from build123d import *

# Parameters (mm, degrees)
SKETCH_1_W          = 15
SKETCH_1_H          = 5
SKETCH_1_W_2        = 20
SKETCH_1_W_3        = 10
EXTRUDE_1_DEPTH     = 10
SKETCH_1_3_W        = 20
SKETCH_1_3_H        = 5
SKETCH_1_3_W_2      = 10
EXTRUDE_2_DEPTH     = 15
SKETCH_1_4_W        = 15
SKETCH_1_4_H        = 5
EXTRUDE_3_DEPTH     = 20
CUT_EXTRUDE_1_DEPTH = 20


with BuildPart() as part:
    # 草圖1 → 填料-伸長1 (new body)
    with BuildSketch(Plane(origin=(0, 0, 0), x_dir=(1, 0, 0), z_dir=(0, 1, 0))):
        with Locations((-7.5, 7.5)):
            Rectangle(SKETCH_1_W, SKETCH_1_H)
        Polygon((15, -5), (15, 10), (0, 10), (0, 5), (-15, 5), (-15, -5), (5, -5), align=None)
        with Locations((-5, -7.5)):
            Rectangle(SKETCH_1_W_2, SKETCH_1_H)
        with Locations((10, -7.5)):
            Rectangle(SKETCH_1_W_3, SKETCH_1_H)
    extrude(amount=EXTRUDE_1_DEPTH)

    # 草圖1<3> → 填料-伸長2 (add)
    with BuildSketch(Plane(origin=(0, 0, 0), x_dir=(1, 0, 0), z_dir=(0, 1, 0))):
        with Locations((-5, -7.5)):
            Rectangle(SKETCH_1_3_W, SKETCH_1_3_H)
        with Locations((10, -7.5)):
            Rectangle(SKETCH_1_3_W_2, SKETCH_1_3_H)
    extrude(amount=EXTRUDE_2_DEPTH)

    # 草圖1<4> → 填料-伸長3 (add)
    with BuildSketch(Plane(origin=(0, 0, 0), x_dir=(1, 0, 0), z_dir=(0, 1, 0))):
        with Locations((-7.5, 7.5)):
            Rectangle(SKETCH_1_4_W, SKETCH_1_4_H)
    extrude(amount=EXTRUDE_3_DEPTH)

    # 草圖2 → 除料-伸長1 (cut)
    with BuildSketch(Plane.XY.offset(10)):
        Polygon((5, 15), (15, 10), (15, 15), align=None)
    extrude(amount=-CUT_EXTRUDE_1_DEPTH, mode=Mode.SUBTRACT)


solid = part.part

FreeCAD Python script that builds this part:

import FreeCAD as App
import Part
import Sketcher

V = App.Vector

doc = App.newDocument("Part")
body = doc.addObject("PartDesign::Body", "Body")

sketch1 = body.newObject("Sketcher::SketchObject", "Sketch")
sketch1.AttachmentSupport = (doc.getObject("XZ_Plane"), [""])
sketch1.MapMode = "FlatFace"
sketch1.addGeometry([
    Part.LineSegment(V(-15, -10, 0), V(-15, 10, 0)),
    Part.LineSegment(V(-15, 10, 0), V(15, 10, 0)),
    Part.LineSegment(V(15, 10, 0), V(15, -10, 0)),
    Part.LineSegment(V(15, -10, 0), V(-15, -10, 0)),
], False)
sketch1.addConstraint([
    Sketcher.Constraint("Coincident", 0, 2, 1, 1),
    Sketcher.Constraint("Coincident", 1, 2, 2, 1),
    Sketcher.Constraint("Coincident", 2, 2, 3, 1),
    Sketcher.Constraint("Coincident", 3, 2, 0, 1),
    Sketcher.Constraint("Vertical", 0),
    Sketcher.Constraint("Horizontal", 1),
    Sketcher.Constraint("Vertical", 2),
    Sketcher.Constraint("Horizontal", 3),
    Sketcher.Constraint("Symmetric", 0, 2, 2, 2, -1, 1),
    Sketcher.Constraint("DistanceX", 1, 1, 1, 2, 30.0),
    Sketcher.Constraint("DistanceY", 0, 1, 0, 2, 20.0),
])
pad1 = body.newObject("PartDesign::Pad", "Pad")
pad1.Profile = sketch1
pad1.Length = 10
pad1.Reversed = True

sketch2 = body.newObject("Sketcher::SketchObject", "Sketch001")
sketch2.AttachmentSupport = (doc.getObject("XZ_Plane"), [""])
sketch2.MapMode = "FlatFace"
sketch2.addGeometry([
    Part.LineSegment(V(-15, 5, 0), V(-15, 10, 0)),
    Part.LineSegment(V(-15, 10, 0), V(15, 10, 0)),
    Part.LineSegment(V(15, 10, 0), V(15, 5, 0)),
    Part.LineSegment(V(15, 5, 0), V(-15, 5, 0)),
], False)
sketch2.addConstraint([
    Sketcher.Constraint("Coincident", 0, 2, 1, 1),
    Sketcher.Constraint("Coincident", 1, 2, 2, 1),
    Sketcher.Constraint("Coincident", 2, 2, 3, 1),
    Sketcher.Constraint("Coincident", 3, 2, 0, 1),
    Sketcher.Constraint("Vertical", 0),
    Sketcher.Constraint("Horizontal", 1),
    Sketcher.Constraint("Vertical", 2),
    Sketcher.Constraint("Horizontal", 3),
    Sketcher.Constraint("DistanceX", 1, 1, 1, 2, 30.0),
    Sketcher.Constraint("DistanceY", 0, 1, 0, 2, 5.0),
    Sketcher.Constraint("DistanceX", 0, 2, -1, 1, 15.0),
    Sketcher.Constraint("DistanceY", -1, 1, 0, 2, 10.0),
])
pad2 = body.newObject("PartDesign::Pad", "Pad001")
pad2.Profile = sketch2
pad2.Length = 15
pad2.Reversed = True

sketch3 = body.newObject("Sketcher::SketchObject", "Sketch002")
sketch3.AttachmentSupport = (doc.getObject("XZ_Plane"), [""])
sketch3.MapMode = "FlatFace"
sketch3.addGeometry([
    Part.LineSegment(V(-15, -10, 0), V(-15, -5, 0)),
    Part.LineSegment(V(-15, -5, 0), V(0, -5, 0)),
    Part.LineSegment(V(0, -5, 0), V(0, -10, 0)),
    Part.LineSegment(V(0, -10, 0), V(-15, -10, 0)),
], False)
sketch3.addConstraint([
    Sketcher.Constraint("Coincident", 0, 2, 1, 1),
    Sketcher.Constraint("Coincident", 1, 2, 2, 1),
    Sketcher.Constraint("Coincident", 2, 2, 3, 1),
    Sketcher.Constraint("Coincident", 3, 2, 0, 1),
    Sketcher.Constraint("Vertical", 0),
    Sketcher.Constraint("Horizontal", 1),
    Sketcher.Constraint("Vertical", 2),
    Sketcher.Constraint("Horizontal", 3),
    Sketcher.Constraint("PointOnObject", 1, 2, -2),
    Sketcher.Constraint("DistanceX", 1, 1, 1, 2, 15.0),
    Sketcher.Constraint("DistanceY", 0, 1, 0, 2, 5.0),
    Sketcher.Constraint("DistanceY", 0, 2, -1, 1, 5.0),
])
pad3 = body.newObject("PartDesign::Pad", "Pad002")
pad3.Profile = sketch3
pad3.Length = 20
pad3.Reversed = True

sketch4 = body.newObject("Sketcher::SketchObject", "Sketch003")
sketch4.AttachmentSupport = (doc.getObject("XY_Plane"), [""])
sketch4.MapMode = "FlatFace"
sketch4.AttachmentOffset = App.Placement(V(0, 0, 10), App.Rotation())
sketch4.addGeometry([
    Part.LineSegment(V(5, 15, 0), V(15, 10, 0)),
    Part.LineSegment(V(15, 10, 0), V(15, 15, 0)),
    Part.LineSegment(V(15, 15, 0), V(5, 15, 0)),
], False)
sketch4.addConstraint([
    Sketcher.Constraint("Coincident", 0, 2, 1, 1),
    Sketcher.Constraint("Coincident", 1, 2, 2, 1),
    Sketcher.Constraint("Coincident", 2, 2, 0, 1),
    Sketcher.Constraint("Vertical", 1),
    Sketcher.Constraint("Horizontal", 2),
    Sketcher.Constraint("DistanceX", 2, 2, 2, 1, 10.0),
    Sketcher.Constraint("DistanceY", 1, 1, 1, 2, 5.0),
    Sketcher.Constraint("DistanceX", -1, 1, 0, 2, 15.0),
    Sketcher.Constraint("DistanceY", -1, 1, 0, 2, 10.0),
])
pocket1 = body.newObject("PartDesign::Pocket", "Pocket")
pocket1.Profile = sketch4
pocket1.Length = 20

doc.recompute()
